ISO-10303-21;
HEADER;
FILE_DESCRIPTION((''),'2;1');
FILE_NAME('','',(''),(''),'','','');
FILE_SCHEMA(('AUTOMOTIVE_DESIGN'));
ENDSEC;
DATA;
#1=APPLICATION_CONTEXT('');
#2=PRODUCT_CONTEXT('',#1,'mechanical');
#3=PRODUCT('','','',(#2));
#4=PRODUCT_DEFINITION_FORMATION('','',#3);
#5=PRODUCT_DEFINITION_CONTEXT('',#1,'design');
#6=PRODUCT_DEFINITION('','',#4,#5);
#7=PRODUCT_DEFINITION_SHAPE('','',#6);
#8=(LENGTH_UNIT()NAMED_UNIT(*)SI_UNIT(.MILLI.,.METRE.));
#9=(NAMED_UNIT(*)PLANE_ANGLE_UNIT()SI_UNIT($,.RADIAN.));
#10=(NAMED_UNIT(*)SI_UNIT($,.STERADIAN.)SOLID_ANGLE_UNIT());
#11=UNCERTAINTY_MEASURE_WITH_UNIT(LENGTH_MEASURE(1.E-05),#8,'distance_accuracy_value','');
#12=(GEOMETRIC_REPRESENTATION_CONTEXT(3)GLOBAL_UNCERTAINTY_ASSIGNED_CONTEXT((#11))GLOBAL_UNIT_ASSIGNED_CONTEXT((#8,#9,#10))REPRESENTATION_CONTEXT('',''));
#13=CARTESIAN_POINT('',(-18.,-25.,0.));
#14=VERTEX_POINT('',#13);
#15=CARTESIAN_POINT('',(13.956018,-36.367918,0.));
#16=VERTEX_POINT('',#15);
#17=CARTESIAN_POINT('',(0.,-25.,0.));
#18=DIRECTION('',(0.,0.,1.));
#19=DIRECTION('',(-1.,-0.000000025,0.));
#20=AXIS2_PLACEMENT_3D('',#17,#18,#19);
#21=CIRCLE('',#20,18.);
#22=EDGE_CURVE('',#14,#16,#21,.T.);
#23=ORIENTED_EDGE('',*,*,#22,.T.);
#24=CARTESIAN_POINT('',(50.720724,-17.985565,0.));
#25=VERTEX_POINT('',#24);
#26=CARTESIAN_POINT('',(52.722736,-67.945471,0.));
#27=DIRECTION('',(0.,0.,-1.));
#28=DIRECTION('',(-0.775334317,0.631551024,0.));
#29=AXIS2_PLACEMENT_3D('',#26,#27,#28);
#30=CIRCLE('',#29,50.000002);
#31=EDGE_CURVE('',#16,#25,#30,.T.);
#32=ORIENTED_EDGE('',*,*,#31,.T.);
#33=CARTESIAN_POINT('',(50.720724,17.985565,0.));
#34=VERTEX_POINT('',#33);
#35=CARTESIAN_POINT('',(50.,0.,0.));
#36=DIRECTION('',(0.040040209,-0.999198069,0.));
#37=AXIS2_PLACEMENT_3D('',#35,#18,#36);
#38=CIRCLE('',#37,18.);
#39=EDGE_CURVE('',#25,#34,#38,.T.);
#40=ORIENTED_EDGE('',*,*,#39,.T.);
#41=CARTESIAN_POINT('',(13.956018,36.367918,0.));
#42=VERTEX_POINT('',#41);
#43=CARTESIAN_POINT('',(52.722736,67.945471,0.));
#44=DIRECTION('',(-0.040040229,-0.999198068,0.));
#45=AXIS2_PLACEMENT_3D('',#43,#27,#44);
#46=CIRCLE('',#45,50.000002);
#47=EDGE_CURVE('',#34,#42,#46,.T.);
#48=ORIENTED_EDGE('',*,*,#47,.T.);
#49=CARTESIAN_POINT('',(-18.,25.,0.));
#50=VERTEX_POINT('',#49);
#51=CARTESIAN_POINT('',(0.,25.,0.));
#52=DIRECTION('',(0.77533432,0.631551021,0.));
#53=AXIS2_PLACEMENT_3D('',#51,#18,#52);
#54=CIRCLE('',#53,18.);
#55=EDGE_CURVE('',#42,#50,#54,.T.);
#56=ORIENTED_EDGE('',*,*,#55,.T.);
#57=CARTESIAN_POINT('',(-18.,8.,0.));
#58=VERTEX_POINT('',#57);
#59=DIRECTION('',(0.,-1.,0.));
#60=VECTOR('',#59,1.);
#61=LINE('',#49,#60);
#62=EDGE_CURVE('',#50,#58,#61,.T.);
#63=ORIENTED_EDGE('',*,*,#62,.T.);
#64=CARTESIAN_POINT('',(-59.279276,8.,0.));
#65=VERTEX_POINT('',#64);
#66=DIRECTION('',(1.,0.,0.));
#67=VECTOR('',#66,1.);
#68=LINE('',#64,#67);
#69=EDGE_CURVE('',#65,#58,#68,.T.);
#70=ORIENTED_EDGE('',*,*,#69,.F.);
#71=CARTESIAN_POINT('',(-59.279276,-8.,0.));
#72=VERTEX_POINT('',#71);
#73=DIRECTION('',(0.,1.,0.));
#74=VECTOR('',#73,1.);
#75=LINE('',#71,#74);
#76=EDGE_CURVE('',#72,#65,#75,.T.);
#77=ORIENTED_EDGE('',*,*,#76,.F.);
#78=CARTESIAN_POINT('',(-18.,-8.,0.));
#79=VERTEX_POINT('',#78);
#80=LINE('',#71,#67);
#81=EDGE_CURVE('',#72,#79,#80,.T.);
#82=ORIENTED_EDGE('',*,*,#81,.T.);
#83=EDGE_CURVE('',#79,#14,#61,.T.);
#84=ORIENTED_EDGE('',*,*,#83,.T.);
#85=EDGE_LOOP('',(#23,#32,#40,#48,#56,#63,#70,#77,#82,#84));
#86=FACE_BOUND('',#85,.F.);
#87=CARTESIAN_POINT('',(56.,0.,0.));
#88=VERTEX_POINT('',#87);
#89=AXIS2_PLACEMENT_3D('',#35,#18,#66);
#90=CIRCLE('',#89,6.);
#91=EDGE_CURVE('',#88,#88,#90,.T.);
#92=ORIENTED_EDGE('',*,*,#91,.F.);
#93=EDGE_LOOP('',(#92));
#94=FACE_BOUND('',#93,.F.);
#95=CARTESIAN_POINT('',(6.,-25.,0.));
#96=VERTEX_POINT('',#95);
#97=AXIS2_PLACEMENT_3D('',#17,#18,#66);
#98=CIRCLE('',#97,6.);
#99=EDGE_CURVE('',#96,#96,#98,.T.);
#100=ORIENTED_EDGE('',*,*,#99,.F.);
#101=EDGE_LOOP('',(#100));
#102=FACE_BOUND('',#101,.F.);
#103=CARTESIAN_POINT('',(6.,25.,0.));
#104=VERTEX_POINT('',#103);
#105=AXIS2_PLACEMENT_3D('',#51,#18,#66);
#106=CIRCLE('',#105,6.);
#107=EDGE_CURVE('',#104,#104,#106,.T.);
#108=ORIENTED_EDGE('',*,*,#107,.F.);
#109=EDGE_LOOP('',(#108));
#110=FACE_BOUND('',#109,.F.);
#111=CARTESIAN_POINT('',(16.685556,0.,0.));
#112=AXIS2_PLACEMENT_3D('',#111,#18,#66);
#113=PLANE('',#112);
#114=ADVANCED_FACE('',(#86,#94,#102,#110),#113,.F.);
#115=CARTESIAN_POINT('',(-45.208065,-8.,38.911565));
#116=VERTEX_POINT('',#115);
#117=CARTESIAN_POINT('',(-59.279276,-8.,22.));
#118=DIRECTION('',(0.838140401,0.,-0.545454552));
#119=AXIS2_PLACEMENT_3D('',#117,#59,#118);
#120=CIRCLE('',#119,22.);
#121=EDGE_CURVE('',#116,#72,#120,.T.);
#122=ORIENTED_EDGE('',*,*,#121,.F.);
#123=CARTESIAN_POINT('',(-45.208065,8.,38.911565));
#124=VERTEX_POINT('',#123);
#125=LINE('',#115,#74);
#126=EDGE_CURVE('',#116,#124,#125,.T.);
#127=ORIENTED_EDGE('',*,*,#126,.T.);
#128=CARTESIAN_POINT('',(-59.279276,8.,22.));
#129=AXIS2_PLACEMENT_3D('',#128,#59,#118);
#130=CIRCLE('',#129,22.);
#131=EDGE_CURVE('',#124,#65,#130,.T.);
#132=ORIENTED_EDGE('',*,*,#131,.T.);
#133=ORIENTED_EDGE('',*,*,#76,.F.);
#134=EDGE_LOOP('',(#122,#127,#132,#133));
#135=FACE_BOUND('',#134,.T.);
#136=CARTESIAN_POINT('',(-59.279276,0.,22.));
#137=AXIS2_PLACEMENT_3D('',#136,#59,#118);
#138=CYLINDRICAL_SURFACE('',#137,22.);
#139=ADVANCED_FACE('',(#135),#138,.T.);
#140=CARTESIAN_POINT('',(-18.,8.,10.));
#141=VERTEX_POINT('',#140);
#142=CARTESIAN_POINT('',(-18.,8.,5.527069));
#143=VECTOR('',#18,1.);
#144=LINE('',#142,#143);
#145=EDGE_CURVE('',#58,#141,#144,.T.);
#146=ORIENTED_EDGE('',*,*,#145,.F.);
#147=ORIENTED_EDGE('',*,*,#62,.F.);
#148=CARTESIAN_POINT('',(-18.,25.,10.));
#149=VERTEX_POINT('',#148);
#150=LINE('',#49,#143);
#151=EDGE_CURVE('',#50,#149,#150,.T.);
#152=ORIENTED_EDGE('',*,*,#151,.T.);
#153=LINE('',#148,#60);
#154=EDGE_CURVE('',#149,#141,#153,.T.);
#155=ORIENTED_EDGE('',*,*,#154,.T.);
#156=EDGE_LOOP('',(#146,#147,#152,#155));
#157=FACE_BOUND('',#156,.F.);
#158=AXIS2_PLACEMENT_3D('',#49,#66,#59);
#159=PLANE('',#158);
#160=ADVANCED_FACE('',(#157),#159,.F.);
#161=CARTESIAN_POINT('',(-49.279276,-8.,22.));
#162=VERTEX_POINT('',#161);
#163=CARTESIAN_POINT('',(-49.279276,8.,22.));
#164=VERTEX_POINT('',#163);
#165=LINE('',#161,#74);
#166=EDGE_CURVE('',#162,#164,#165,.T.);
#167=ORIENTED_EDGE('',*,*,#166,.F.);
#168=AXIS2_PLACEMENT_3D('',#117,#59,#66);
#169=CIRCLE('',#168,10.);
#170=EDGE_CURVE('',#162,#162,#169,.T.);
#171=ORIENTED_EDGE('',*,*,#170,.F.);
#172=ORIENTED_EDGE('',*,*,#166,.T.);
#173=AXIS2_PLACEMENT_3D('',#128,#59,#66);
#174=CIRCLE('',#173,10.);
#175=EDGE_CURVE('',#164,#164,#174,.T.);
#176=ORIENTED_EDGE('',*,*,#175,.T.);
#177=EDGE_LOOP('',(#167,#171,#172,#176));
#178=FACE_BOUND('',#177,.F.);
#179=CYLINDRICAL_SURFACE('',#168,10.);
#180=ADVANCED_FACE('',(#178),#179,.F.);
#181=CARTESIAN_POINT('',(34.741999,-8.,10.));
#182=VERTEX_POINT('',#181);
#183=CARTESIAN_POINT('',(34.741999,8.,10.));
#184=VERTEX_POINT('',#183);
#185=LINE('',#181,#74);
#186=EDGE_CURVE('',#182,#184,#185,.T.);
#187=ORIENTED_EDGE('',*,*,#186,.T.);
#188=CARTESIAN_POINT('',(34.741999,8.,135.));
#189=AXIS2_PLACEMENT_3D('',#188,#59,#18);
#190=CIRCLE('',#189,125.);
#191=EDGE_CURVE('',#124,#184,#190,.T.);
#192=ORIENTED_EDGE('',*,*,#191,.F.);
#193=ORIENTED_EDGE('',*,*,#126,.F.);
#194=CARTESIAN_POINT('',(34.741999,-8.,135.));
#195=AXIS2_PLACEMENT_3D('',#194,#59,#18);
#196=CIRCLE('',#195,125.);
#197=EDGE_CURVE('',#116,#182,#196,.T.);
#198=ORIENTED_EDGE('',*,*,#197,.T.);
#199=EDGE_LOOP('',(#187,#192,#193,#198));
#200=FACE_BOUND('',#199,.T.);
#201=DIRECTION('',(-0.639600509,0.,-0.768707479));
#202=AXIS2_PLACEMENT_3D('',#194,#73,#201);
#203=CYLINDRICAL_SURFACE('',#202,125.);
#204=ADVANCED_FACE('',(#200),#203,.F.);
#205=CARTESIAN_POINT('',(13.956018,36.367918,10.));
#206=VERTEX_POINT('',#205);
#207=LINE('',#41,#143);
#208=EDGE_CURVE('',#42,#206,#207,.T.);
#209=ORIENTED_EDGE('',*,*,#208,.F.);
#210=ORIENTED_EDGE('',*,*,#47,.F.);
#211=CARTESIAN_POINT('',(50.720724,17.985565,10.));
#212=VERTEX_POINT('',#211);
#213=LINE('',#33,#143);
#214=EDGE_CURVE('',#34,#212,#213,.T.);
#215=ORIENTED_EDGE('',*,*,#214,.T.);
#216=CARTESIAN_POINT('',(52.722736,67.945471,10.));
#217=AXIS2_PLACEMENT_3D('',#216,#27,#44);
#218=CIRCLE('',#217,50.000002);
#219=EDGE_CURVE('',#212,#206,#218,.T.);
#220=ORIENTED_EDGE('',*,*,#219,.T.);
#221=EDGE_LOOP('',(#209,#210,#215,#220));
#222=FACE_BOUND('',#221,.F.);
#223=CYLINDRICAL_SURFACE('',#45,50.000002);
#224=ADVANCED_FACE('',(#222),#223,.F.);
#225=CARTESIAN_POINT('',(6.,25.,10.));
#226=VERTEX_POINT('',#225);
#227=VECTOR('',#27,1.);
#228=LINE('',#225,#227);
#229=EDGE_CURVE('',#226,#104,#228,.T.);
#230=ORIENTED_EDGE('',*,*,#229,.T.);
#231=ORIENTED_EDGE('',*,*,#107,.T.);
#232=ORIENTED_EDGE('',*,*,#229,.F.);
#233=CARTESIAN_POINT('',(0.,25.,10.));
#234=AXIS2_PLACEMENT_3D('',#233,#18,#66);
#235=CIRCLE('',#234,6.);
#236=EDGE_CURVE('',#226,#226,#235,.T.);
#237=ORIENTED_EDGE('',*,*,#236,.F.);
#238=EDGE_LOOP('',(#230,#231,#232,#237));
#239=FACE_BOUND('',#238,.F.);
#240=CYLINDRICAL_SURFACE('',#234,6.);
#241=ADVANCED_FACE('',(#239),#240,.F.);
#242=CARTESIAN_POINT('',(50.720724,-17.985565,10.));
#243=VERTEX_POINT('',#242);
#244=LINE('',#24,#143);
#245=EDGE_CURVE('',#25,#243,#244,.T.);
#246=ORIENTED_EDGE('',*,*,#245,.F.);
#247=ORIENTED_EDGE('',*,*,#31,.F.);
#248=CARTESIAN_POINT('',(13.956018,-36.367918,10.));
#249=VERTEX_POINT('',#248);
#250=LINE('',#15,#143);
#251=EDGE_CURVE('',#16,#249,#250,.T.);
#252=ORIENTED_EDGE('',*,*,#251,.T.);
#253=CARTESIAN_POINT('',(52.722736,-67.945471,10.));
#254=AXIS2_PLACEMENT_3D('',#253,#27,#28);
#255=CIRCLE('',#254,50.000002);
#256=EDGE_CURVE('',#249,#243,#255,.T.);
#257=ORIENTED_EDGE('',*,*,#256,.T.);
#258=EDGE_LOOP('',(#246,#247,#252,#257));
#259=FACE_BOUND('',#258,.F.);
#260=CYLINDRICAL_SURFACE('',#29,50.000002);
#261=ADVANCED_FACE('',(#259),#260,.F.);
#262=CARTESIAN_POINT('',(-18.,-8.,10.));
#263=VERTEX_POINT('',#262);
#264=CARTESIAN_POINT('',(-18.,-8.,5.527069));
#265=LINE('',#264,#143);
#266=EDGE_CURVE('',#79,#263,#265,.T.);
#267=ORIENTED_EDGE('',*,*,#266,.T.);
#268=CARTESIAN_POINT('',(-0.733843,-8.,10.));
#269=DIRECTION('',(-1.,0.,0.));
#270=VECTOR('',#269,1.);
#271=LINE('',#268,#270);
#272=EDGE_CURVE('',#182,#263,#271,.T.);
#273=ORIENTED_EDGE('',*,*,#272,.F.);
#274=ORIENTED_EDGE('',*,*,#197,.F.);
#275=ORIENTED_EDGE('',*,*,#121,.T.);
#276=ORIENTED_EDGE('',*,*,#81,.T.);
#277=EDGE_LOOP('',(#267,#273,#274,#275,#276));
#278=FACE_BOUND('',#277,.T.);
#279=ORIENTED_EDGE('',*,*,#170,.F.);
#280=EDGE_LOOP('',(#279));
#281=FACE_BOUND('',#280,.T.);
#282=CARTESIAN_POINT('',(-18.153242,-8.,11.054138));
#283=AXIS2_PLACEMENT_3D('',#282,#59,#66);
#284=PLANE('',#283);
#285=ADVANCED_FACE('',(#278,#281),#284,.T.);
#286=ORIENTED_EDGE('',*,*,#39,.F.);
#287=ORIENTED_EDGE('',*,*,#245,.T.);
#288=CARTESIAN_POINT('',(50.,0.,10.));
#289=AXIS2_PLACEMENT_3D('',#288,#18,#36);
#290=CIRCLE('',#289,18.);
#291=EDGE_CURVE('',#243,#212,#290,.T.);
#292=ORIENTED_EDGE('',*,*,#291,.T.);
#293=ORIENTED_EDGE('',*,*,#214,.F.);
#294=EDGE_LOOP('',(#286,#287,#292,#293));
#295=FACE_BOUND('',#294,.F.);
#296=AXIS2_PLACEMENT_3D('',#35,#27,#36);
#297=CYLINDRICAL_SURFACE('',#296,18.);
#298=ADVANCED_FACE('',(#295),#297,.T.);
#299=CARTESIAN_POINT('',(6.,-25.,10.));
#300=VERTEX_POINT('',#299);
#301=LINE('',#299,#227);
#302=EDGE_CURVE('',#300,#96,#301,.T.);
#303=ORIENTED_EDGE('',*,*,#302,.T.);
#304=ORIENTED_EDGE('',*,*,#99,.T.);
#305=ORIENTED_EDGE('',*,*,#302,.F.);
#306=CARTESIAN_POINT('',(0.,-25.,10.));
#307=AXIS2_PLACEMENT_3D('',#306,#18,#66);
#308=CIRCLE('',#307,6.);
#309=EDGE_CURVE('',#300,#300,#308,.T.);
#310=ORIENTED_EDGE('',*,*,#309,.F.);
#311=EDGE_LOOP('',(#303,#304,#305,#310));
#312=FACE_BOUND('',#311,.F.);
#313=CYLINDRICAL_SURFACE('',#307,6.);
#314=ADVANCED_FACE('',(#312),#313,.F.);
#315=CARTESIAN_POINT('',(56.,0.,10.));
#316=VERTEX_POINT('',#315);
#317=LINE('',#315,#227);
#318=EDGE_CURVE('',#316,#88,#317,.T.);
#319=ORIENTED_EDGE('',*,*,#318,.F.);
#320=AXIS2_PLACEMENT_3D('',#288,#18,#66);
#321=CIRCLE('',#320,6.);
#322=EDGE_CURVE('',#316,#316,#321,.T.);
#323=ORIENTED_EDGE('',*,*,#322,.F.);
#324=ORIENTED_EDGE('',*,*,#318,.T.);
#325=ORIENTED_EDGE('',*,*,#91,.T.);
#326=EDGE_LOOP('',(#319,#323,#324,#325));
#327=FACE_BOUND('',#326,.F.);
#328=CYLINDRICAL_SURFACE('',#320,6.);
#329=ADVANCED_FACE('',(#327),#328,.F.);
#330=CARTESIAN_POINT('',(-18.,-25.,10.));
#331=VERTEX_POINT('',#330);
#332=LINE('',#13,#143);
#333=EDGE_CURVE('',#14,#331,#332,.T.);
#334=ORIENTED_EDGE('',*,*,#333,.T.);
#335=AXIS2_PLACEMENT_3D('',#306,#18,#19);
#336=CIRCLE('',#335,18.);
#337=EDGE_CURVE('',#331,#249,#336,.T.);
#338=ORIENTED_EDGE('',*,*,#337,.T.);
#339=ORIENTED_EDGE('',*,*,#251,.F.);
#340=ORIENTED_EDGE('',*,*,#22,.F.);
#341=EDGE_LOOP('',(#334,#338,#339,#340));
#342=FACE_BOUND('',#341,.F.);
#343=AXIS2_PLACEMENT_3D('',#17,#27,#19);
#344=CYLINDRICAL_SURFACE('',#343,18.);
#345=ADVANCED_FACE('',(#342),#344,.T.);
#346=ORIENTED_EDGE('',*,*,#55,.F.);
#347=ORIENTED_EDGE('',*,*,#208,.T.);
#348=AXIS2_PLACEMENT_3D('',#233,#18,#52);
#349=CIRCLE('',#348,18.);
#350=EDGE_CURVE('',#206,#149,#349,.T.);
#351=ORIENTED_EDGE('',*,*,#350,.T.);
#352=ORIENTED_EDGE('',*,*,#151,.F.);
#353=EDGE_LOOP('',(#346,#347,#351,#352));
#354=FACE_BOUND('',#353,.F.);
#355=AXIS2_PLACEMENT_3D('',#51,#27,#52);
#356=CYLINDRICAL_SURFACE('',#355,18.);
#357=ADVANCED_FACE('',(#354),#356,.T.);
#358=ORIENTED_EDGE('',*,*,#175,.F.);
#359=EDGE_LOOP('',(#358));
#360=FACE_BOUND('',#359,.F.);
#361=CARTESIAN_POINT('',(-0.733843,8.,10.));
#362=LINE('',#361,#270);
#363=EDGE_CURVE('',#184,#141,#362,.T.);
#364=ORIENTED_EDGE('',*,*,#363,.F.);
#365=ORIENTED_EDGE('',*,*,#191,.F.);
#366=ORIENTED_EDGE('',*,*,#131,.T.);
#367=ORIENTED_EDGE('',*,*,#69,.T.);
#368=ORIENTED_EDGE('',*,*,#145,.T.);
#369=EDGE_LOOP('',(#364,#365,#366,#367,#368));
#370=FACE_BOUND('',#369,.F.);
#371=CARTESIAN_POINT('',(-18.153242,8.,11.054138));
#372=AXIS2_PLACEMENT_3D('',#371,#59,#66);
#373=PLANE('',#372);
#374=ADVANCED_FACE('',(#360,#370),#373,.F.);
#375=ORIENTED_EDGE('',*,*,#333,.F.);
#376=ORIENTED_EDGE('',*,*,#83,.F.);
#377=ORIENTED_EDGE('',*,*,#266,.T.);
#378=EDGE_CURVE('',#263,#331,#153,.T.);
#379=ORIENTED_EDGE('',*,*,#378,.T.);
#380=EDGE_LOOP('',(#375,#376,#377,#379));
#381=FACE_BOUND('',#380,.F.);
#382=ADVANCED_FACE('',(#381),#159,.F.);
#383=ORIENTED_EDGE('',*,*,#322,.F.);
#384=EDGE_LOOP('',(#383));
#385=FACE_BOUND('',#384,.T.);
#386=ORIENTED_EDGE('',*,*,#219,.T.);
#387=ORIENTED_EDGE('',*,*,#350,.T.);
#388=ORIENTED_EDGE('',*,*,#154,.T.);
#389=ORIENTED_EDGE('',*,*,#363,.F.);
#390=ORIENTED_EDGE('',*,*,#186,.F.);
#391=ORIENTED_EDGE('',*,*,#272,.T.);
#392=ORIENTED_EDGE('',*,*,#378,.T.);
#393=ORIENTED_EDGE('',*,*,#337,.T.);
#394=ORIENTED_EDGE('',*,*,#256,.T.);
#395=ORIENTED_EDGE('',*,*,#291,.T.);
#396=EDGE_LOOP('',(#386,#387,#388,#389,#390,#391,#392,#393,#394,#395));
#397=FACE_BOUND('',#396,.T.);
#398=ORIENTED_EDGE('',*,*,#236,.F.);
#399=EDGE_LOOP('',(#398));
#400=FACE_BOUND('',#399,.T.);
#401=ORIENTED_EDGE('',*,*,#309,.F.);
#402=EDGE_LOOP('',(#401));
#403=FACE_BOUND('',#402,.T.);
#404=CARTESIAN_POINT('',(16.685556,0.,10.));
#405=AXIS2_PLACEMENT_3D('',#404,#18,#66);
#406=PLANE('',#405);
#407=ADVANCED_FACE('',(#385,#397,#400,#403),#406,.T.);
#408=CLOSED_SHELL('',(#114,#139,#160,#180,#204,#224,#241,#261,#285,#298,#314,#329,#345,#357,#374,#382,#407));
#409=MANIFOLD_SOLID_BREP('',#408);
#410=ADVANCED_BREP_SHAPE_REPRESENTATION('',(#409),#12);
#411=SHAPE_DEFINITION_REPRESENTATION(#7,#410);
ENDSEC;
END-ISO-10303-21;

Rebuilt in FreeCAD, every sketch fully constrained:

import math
import FreeCAD as App
import Part
import Sketcher
from FreeCAD import Vector


def edges_at(feature, points):
    """Names of the edges that pass closest to the given points."""
    edges = feature.Shape.Edges
    near = lambda p: min(range(len(edges)), key=lambda i: edges[i].distToShape(Part.Vertex(*p))[0])
    return sorted({f"Edge{near(p) + 1}" for p in points})

doc = App.newDocument("Part")
body = doc.addObject("PartDesign::Body", "Body")

# Sketch on XY plane
sketch1 = doc.addObject("Sketcher::SketchObject", "Sketch")
body.addObject(sketch1)
sketch1.AttachmentSupport = (doc.XY_Plane, [""])
sketch1.MapMode = "FlatFace"
sketch1.addGeometry(Part.ArcOfCircle(Part.Circle(Vector(52.722736, -67.945471, 0), Vector(0, 0, 1), 50.000002), math.radians(92.29475), math.radians(140.835353)), False)
sketch1.addGeometry(Part.ArcOfCircle(Part.Circle(Vector(50, 0, 0), Vector(0, 0, 1), 18), math.radians(-87.705252), math.radians(87.705252)), False)
sketch1.addGeometry(Part.ArcOfCircle(Part.Circle(Vector(52.722736, 67.945471, 0), Vector(0, 0, 1), 50.000002), math.radians(-140.835353), math.radians(-92.29475)), False)
sketch1.addGeometry(Part.ArcOfCircle(Part.Circle(Vector(0, 25, 0), Vector(0, 0, 1), 18), math.radians(39.164647), math.radians(179.999999)), False)
sketch1.addGeometry(Part.LineSegment(Vector(-18, 25, 0), Vector(-18, -25, 0)), False)
sketch1.addGeometry(Part.ArcOfCircle(Part.Circle(Vector(0, -25, 0), Vector(0, 0, 1), 18), math.radians(-179.999999), math.radians(-39.164647)), False)
sketch1.addConstraint(Sketcher.Constraint("Tangent", 0, 1, 1, 1))
sketch1.addConstraint(Sketcher.Constraint("Tangent", 1, 2, 2, 2))
sketch1.addConstraint(Sketcher.Constraint("Tangent", 2, 1, 3, 1))
sketch1.addConstraint(Sketcher.Constraint("Tangent", 3, 2, 4, 1))
sketch1.addConstraint(Sketcher.Constraint("Tangent", 4, 2, 5, 1))
sketch1.addConstraint(Sketcher.Constraint("Tangent", 5, 2, 0, 2))
sketch1.addConstraint(Sketcher.Constraint("Vertical", 4))
sketch1.addConstraint(Sketcher.Constraint("Equal", 0, 2))
sketch1.addConstraint(Sketcher.Constraint("Equal", 1, 3))
sketch1.addConstraint(Sketcher.Constraint("Equal", 3, 5))
sketch1.addConstraint(Sketcher.Constraint("Symmetric", 3, 3, 5, 3, -1, 1))
sketch1.addConstraint(Sketcher.Constraint("PointOnObject", 1, 3, -1))
sketch1.addConstraint(Sketcher.Constraint("Radius", 1, 18.0))
sketch1.addConstraint(Sketcher.Constraint("DistanceY", 4, 2, 4, 1, 50.0))
sketch1.addConstraint(Sketcher.Constraint("DistanceX", -1, 1, 1, 3, 50.0))
sketch1.addConstraint(Sketcher.Constraint("Radius", 0, 50.000002))
pad1 = doc.addObject("PartDesign::Pad", "Pad")
body.addObject(pad1)
pad1.Profile = sketch1
pad1.Length = 10
body2 = doc.addObject("PartDesign::Body", "Body001")

# Sketch on XZ plane
sketch2 = doc.addObject("Sketcher::SketchObject", "Sketch001")
body2.addObject(sketch2)
sketch2.AttachmentSupport = (doc.getObject("XZ_Plane001"), [""])
sketch2.MapMode = "FlatFace"
sketch2.addGeometry(Part.LineSegment(Vector(-59.279276, 0, 0), Vector(50.720724, 0, 0)), False)
sketch2.addGeometry(Part.LineSegment(Vector(50.720724, 0, 0), Vector(50.720724, 10, 0)), False)
sketch2.addGeometry(Part.LineSegment(Vector(50.720724, 10, 0), Vector(-40.840187, 10, 0)), False)
sketch2.addGeometry(Part.ArcOfCircle(Part.Circle(Vector(-59.279276, 22, 0), Vector(0, 0, 1), 22), math.radians(-33.055732), math.radians(270)), False)
sketch2.addConstraint(Sketcher.Constraint("Coincident", 0, 2, 1, 1))
sketch2.addConstraint(Sketcher.Constraint("Coincident", 1, 2, 2, 1))
sketch2.addConstraint(Sketcher.Constraint("Coincident", 2, 2, 3, 1))
sketch2.addConstraint(Sketcher.Constraint("Tangent", 3, 2, 0, 1))
sketch2.addConstraint(Sketcher.Constraint("Horizontal", 0))
sketch2.addConstraint(Sketcher.Constraint("Vertical", 1))
sketch2.addConstraint(Sketcher.Constraint("Horizontal", 2))
sketch2.addConstraint(Sketcher.Constraint("PointOnObject", 0, 2, -1))
sketch2.addConstraint(Sketcher.Constraint("Radius", 3, 22.0))
sketch2.addConstraint(Sketcher.Constraint("DistanceX", 0, 1, 0, 2, 110.0))
sketch2.addConstraint(Sketcher.Constraint("DistanceY", 1, 1, 1, 2, 10.0))
sketch2.addConstraint(Sketcher.Constraint("DistanceX", 3, 3, -1, 1, 59.279276))
pad2 = doc.addObject("PartDesign::Pad", "Pad001")
body2.addObject(pad2)
pad2.Profile = sketch2
pad2.Length = 16
pad2.Midplane = True
doc.recompute()

fillet = doc.addObject("PartDesign::Fillet", "Fillet")
body2.addObject(fillet)
fillet.Base = (pad2, edges_at(pad2, [(-40.84, 0, 10)]))
fillet.Radius = 125
doc.recompute()

boolean = doc.addObject("PartDesign::Boolean", "Boolean")
body2.addObject(boolean)
boolean.Type = "Fuse"
boolean.addObjects([body])

# Sketch on XY plane
sketch3 = doc.addObject("Sketcher::SketchObject", "Sketch002")
body2.addObject(sketch3)
sketch3.AttachmentSupport = (doc.getObject("XY_Plane001"), [""])
sketch3.MapMode = "FlatFace"
sketch3.AttachmentOffset = App.Placement(Vector(0, 0, 10), App.Rotation())
sketch3.addGeometry(Part.Circle(Vector(0, 25, 0), Vector(0, 0, 1), 6), False)
sketch3.addGeometry(Part.Circle(Vector(0, -25, 0), Vector(0, 0, 1), 6), False)
sketch3.addGeometry(Part.Circle(Vector(50, 0, 0), Vector(0, 0, 1), 6), False)
sketch3.addConstraint(Sketcher.Constraint("Equal", 0, 1))
sketch3.addConstraint(Sketcher.Constraint("Equal", 1, 2))
sketch3.addConstraint(Sketcher.Constraint("Symmetric", 0, 3, 1, 3, -1, 1))
sketch3.addConstraint(Sketcher.Constraint("PointOnObject", 0, 3, -2))
sketch3.addConstraint(Sketcher.Constraint("PointOnObject", 2, 3, -1))
sketch3.addConstraint(Sketcher.Constraint("Diameter", 0, 12.0))
sketch3.addConstraint(Sketcher.Constraint("DistanceY", -1, 1, 0, 3, 25.0))
sketch3.addConstraint(Sketcher.Constraint("DistanceX", -1, 1, 2, 3, 50.0))
pocket1 = doc.addObject("PartDesign::Pocket", "Pocket")
body2.addObject(pocket1)
pocket1.Profile = sketch3
pocket1.Length = 25

# Sketch on XZ plane
sketch4 = doc.addObject("Sketcher::SketchObject", "Sketch003")
body2.addObject(sketch4)
sketch4.AttachmentSupport = (doc.getObject("XZ_Plane001"), [""])
sketch4.MapMode = "FlatFace"
sketch4.AttachmentOffset = App.Placement(Vector(0, 0, 8), App.Rotation())
sketch4.addGeometry(Part.Circle(Vector(-59.279276, 22, 0), Vector(0, 0, 1), 10), False)
sketch4.addConstraint(Sketcher.Constraint("Diameter", 0, 20.0))
sketch4.addConstraint(Sketcher.Constraint("DistanceY", -1, 1, 0, 3, 22.0))
sketch4.addConstraint(Sketcher.Constraint("DistanceX", 0, 3, -1, 1, 59.279276))
pocket2 = doc.addObject("PartDesign::Pocket", "Pocket001")
body2.addObject(pocket2)
pocket2.Profile = sketch4
pocket2.Length = 25

doc.recompute()
